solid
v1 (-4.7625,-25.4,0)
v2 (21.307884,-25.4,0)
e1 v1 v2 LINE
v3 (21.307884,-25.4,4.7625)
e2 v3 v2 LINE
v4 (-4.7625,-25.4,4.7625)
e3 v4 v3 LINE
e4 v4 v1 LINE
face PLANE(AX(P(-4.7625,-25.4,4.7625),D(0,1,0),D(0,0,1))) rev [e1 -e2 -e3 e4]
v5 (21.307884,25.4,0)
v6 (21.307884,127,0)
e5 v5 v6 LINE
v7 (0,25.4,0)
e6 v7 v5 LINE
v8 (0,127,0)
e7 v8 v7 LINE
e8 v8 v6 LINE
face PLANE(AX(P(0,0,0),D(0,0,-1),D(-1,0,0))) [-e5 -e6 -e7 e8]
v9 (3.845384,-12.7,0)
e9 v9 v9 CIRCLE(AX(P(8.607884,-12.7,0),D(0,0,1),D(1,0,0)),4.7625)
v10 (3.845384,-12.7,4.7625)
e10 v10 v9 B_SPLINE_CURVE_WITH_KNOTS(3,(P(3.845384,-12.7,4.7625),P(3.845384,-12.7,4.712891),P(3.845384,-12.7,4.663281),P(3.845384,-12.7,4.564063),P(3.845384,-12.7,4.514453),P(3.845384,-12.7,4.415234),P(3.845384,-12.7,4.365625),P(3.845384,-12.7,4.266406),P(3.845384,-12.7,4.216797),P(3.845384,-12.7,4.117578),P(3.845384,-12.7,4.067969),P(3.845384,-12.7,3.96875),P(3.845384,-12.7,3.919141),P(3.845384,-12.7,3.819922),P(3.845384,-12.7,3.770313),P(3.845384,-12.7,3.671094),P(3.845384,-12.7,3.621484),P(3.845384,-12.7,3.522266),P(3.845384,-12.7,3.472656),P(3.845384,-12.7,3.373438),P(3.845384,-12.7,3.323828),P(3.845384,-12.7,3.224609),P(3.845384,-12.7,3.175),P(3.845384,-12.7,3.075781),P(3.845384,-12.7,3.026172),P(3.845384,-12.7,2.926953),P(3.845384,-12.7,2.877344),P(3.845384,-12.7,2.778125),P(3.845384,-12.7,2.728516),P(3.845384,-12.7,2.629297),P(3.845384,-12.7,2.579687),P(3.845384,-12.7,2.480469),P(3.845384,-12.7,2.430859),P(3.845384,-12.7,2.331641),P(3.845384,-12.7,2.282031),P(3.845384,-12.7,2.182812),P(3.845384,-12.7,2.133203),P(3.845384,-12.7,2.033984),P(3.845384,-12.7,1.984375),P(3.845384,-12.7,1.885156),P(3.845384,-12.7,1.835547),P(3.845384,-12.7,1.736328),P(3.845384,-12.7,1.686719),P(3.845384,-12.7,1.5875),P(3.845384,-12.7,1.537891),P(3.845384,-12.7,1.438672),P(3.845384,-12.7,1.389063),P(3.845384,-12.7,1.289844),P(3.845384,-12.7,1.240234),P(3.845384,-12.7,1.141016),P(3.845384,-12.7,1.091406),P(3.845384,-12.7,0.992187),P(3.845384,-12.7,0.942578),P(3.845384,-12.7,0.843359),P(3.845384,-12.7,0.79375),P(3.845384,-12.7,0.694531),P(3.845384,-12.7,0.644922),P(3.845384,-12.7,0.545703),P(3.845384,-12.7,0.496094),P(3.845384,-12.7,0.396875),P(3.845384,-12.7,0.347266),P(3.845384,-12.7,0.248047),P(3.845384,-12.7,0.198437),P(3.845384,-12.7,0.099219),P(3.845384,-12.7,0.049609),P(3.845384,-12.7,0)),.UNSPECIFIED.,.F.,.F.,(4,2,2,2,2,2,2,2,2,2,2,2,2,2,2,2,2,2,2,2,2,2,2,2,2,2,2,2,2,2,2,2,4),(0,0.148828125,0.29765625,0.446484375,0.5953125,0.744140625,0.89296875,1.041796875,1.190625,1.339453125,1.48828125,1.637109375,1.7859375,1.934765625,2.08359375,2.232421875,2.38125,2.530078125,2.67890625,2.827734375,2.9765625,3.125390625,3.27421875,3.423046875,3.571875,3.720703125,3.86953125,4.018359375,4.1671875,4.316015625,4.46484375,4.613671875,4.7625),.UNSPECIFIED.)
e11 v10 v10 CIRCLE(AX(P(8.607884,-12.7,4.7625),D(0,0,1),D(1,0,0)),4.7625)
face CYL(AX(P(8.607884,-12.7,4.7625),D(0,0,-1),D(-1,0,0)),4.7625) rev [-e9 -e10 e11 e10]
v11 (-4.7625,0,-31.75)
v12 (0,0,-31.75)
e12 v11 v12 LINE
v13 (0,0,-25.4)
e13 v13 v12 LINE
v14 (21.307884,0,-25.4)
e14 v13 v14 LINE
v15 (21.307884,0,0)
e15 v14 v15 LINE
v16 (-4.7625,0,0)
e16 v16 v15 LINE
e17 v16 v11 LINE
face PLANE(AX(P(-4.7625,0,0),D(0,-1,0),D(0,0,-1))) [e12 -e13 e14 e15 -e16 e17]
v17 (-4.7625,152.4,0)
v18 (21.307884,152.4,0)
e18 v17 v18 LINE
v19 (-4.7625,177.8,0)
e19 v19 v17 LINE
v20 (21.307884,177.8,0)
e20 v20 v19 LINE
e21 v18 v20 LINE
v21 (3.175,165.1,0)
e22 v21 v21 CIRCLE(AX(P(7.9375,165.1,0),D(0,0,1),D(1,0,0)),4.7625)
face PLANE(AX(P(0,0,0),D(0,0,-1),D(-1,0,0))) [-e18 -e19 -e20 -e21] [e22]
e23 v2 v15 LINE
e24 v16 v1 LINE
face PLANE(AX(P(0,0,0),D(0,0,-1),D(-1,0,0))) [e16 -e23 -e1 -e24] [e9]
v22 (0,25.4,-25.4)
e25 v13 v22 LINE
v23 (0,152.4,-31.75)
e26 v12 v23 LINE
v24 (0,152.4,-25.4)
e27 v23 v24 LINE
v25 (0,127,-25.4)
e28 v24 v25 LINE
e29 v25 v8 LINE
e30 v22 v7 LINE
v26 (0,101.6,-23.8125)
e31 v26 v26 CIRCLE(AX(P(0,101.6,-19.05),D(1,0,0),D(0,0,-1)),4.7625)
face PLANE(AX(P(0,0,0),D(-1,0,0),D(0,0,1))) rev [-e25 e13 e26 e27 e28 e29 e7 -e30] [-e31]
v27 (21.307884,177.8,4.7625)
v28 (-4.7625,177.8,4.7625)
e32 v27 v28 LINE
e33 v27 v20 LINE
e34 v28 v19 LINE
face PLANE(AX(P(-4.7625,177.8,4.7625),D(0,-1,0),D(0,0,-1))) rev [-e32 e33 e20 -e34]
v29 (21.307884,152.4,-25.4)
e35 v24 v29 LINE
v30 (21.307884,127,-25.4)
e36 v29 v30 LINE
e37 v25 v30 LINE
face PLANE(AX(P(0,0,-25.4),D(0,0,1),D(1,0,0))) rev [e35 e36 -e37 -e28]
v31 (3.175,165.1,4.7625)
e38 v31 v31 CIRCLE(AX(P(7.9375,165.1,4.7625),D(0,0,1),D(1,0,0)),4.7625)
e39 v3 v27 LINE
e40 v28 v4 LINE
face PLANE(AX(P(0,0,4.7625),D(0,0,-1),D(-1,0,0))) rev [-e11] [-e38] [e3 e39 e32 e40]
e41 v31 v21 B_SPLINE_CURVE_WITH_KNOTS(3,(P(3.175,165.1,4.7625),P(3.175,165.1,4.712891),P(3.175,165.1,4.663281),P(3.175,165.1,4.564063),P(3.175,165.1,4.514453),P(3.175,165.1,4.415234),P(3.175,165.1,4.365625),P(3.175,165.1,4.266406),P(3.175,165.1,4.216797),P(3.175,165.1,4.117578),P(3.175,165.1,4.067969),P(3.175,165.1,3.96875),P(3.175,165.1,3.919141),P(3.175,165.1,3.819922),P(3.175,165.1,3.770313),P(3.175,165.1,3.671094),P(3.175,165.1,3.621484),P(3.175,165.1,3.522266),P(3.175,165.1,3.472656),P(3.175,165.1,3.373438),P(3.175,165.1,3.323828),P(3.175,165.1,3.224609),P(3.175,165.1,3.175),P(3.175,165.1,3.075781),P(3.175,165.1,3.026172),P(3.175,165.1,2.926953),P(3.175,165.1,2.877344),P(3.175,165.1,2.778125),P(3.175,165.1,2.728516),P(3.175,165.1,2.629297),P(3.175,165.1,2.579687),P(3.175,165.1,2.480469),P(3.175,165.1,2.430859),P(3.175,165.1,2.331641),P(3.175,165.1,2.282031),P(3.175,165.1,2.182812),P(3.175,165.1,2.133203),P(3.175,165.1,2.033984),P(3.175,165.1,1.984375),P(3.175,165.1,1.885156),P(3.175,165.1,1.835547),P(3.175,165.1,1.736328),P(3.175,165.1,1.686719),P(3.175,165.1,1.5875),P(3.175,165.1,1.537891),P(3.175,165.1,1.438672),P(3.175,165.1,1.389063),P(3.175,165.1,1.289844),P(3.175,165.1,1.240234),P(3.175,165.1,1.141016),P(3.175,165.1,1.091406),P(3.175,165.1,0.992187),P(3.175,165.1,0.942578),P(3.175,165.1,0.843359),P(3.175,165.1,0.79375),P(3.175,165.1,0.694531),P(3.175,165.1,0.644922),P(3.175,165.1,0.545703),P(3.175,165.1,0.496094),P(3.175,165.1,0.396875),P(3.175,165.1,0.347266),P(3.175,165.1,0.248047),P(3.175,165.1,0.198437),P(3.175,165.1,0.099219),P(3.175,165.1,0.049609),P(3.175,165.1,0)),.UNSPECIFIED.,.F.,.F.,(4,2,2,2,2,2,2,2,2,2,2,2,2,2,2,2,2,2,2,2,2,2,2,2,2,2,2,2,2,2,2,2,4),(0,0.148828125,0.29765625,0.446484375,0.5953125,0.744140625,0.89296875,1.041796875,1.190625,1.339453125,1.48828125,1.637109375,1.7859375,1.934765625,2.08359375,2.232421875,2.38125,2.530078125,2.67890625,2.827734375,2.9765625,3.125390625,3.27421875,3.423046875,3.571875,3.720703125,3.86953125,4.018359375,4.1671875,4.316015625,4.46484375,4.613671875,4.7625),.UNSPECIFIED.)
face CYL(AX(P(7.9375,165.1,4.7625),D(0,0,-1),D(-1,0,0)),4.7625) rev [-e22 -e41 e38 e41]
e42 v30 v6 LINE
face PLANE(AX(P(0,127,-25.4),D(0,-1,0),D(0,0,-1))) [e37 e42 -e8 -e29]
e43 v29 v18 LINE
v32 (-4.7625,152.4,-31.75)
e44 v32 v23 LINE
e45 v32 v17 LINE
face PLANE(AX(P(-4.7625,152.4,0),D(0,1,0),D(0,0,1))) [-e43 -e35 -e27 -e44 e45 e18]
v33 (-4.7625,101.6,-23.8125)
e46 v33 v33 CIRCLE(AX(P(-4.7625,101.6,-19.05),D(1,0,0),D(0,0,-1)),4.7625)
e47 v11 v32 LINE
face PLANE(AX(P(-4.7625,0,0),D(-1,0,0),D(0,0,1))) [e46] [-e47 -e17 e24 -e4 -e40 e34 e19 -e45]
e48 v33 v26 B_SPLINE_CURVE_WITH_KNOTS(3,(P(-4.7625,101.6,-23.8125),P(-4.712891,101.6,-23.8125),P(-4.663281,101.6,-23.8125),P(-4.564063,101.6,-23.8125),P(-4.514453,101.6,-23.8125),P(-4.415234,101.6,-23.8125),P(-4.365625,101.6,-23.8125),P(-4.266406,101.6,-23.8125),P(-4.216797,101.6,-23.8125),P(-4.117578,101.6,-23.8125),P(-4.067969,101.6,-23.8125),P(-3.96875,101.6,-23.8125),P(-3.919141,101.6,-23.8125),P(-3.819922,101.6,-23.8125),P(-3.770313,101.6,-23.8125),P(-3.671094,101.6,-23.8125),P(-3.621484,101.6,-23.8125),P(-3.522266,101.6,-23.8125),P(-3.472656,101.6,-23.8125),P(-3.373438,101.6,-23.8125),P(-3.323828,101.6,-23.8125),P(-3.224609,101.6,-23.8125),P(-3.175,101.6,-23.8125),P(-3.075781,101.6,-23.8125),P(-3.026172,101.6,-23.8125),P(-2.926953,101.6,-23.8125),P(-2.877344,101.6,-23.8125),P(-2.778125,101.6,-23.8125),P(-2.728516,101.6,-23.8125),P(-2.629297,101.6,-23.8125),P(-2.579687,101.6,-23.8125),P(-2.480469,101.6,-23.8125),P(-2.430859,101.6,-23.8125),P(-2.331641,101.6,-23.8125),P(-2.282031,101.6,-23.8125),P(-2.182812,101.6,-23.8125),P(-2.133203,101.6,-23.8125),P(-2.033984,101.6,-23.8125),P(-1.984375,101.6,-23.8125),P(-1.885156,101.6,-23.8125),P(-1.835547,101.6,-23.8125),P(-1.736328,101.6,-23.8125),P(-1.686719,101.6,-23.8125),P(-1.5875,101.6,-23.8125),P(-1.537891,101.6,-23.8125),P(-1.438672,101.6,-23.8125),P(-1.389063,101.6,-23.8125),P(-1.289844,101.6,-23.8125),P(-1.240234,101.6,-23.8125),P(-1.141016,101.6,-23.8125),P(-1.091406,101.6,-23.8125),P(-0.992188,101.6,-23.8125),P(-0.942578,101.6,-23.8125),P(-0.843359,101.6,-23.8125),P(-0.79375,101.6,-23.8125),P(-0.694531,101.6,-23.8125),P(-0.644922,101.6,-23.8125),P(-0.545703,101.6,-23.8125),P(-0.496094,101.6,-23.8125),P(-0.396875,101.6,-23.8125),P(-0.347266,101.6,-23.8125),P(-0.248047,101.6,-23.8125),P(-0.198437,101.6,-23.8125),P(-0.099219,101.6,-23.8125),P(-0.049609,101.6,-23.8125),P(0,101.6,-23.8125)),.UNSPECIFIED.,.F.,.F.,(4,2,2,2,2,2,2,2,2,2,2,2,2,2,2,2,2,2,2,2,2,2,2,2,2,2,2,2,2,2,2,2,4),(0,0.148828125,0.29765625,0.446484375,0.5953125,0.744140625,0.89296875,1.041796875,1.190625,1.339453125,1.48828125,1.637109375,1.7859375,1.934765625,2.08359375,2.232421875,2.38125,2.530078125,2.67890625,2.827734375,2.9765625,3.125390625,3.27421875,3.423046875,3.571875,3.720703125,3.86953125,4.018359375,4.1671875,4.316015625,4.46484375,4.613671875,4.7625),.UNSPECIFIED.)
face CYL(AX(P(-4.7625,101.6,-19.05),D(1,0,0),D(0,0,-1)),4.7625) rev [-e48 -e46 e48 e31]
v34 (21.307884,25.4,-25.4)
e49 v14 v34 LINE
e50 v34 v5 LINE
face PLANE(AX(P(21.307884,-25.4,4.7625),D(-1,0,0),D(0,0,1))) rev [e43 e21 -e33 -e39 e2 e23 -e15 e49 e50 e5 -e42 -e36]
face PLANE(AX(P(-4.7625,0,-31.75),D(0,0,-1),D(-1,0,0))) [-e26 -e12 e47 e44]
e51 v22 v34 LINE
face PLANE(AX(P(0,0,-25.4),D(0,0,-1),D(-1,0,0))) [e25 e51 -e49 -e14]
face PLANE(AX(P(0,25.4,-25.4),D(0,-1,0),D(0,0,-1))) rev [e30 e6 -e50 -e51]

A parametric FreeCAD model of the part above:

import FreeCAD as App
import Part
import Sketcher
from FreeCAD import Vector
Q = App.Units.Quantity


def add_polygon(sketch, points):
    """Adds a closed chain of lines whose ends are joined by coincident constraints."""
    first, n = sketch.GeometryCount, len(points)
    for a, b in zip(points, points[1:] + points[:1]):
        sketch.addGeometry(Part.LineSegment(App.Vector(*a, 0), App.Vector(*b, 0)), False)
    for i in range(n):
        sketch.addConstraint(Sketcher.Constraint("Coincident", first + i, 2, first + (i + 1) % n, 1))

doc = App.newDocument("Part")
body = doc.addObject("PartDesign::Body", "Body")

sketch1 = body.newObject("Sketcher::SketchObject", "Sketch")
sketch1.AttachmentSupport = (doc.getObject("YZ_Plane"), [""])
sketch1.MapMode = "FlatFace"
add_polygon(sketch1, [(152.4, 0), (0, 0), (0, -31.8), (152.4, -31.8)])
sketch1.addGeometry(Part.Circle(Vector(101.6, -19.1, 0), Vector(0, 0, 1), 4.8), False)
sketch1.addConstraint(Sketcher.Constraint("Horizontal", 0))
sketch1.addConstraint(Sketcher.Constraint("Vertical", 1))
sketch1.addConstraint(Sketcher.Constraint("Horizontal", 2))
sketch1.addConstraint(Sketcher.Constraint("Vertical", 3))
sketch1.addConstraint(Sketcher.Constraint("Coincident", 0, 2, -1, 1))
sketch1.addConstraint(Sketcher.Constraint("DistanceX", 0, 2, 0, 1, Q("6 in")))
sketch1.addConstraint(Sketcher.Constraint("Diameter", 4, Q("0.375 in")))
sketch1.addConstraint(Sketcher.Constraint("DistanceX", -1, 1, 4, 3, Q("4 in")))
sketch1.addConstraint(Sketcher.Constraint("DistanceY", 1, 2, 1, 1, Q("1.25 in")))
sketch1.addConstraint(Sketcher.Constraint("DistanceY", 1, 2, 4, 3, Q("0.5 in")))
pad1 = body.newObject("PartDesign::Pad", "Pad")
pad1.Profile = sketch1
pad1.Length = Q("0.1875 in")
pad1.Reversed = True

sketch2 = body.newObject("Sketcher::SketchObject", "Sketch001")
sketch2.AttachmentSupport = (doc.getObject("XY_Plane"), [""])
sketch2.MapMode = "FlatFace"
add_polygon(sketch2, [(-4.8, 177.8), (-4.8, -25.4), (21.3, -25.4), (21.3, 177.8)])
sketch2.addGeometry(Part.Circle(Vector(8.6, -12.7, 0), Vector(0, 0, 1), 4.8), False)
sketch2.addGeometry(Part.Circle(Vector(7.9, 165.1, 0), Vector(0, 0, 1), 4.8), False)
sketch2.addConstraint(Sketcher.Constraint("Vertical", 0))
sketch2.addConstraint(Sketcher.Constraint("Horizontal", 1))
sketch2.addConstraint(Sketcher.Constraint("Vertical", 2))
sketch2.addConstraint(Sketcher.Constraint("Horizontal", 3))
sketch2.addConstraint(Sketcher.Constraint("Equal", 4, 5))
sketch2.addConstraint(Sketcher.Constraint("DistanceY", 0, 2, 0, 1, Q("8 in")))
sketch2.addConstraint(Sketcher.Constraint("Diameter", 4, Q("0.375 in")))
sketch2.addConstraint(Sketcher.Constraint("DistanceY", 0, 2, -1, 1, Q("1 in")))
sketch2.addConstraint(Sketcher.Constraint("DistanceY", 4, 3, 5, 3, Q("7 in")))
sketch2.addConstraint(Sketcher.Constraint("DistanceY", 4, 3, -1, 1, Q("0.5 in")))
sketch2.addConstraint(Sketcher.Constraint("DistanceX", 0, 2, 5, 3, Q("0.5 in")))
sketch2.addConstraint(Sketcher.Constraint("DistanceX", 4, 3, 1, 2, Q("0.5 in")))
sketch2.addConstraint(Sketcher.Constraint("DistanceX", -1, 1, 5, 3, Q("0.3125 in")))
sketch2.addConstraint(Sketcher.Constraint("DistanceX", 1, 1, 1, 2, 26.070384))
pad2 = body.newObject("PartDesign::Pad", "Pad001")
pad2.Profile = sketch2
pad2.Length = Q("0.1875 in")

sketch3 = body.newObject("Sketcher::SketchObject", "Sketch002")
sketch3.AttachmentSupport = (doc.getObject("XY_Plane"), [""])
sketch3.MapMode = "FlatFace"
add_polygon(sketch3, [(21, 152), (21, 127), (0, 127), (0, 152)])
add_polygon(sketch3, [(21, 25), (21, 0), (0, 0), (0, 25)])
sketch3.addConstraint(Sketcher.Constraint("Vertical", 0))
sketch3.addConstraint(Sketcher.Constraint("Horizontal", 1))
sketch3.addConstraint(Sketcher.Constraint("Vertical", 2))
sketch3.addConstraint(Sketcher.Constraint("Horizontal", 3))
sketch3.addConstraint(Sketcher.Constraint("Vertical", 4))
sketch3.addConstraint(Sketcher.Constraint("Horizontal", 5))
sketch3.addConstraint(Sketcher.Constraint("Vertical", 6))
sketch3.addConstraint(Sketcher.Constraint("Horizontal", 7))
sketch3.addConstraint(Sketcher.Constraint("Coincident", 5, 2, -1, 1))
sketch3.addConstraint(Sketcher.Constraint("PointOnObject", 1, 2, -2))
sketch3.addConstraint(Sketcher.Constraint("Vertical", 3, 2, 4, 2))
sketch3.addConstraint(Sketcher.Constraint("Equal", 2, 4))
sketch3.addConstraint(Sketcher.Constraint("DistanceY", 0, 2, 0, 1, Q("1 in")))
sketch3.addConstraint(Sketcher.Constraint("DistanceY", -1, 1, 0, 2, Q("5 in")))
sketch3.addConstraint(Sketcher.Constraint("DistanceX", 1, 2, 1, 1, 21.307884))
pad3 = body.newObject("PartDesign::Pad", "Pad002")
pad3.Profile = sketch3
pad3.Length = Q("1 in")
pad3.Reversed = True

doc.recompute()
